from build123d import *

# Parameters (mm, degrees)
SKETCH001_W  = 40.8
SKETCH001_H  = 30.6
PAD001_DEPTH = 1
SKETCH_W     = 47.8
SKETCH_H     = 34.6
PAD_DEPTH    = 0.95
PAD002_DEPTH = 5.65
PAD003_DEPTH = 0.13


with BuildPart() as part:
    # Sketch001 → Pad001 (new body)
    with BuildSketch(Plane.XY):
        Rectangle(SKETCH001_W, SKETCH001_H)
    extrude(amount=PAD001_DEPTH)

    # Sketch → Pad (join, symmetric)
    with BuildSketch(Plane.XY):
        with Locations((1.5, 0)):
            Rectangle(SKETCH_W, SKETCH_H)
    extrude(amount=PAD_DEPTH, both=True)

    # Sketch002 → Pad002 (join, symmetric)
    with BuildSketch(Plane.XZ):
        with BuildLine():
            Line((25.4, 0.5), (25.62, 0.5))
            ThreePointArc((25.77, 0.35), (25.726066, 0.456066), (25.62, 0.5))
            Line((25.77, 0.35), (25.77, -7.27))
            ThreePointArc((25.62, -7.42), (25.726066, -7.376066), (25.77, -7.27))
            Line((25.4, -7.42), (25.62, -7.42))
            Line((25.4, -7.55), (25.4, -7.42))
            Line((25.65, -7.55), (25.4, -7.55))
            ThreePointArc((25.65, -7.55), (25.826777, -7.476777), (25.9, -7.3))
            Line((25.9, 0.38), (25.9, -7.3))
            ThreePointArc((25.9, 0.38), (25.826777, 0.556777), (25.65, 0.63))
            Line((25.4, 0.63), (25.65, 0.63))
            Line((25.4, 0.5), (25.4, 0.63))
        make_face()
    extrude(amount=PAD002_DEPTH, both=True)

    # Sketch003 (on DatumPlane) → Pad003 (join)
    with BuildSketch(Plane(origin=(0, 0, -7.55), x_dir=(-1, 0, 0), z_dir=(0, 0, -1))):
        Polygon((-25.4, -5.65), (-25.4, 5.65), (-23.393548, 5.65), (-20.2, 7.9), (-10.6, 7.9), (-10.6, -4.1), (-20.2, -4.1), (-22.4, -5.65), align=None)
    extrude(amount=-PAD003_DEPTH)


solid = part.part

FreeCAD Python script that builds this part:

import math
import FreeCAD as App
import Part
import Sketcher

V = App.Vector

doc = App.newDocument("Part")
params = doc.addObject("Spreadsheet::Sheet", "Params")
for row, (alias, value) in enumerate([
    ("sketch1_width", "40.8 mm"),
    ("sketch1_height", "30.6 mm"),
    ("pad1_length", "1 mm"),
    ("sketch2_width", "47.8 mm"),
    ("sketch2_height", "34.6 mm"),
    ("pad2_length", "1.9 mm"),
    ("sketch3_radius", "0.15 mm"),
    ("sketch3_radius2", "0.249999 mm"),
    ("sketch3_width", "0.22 mm"),
    ("sketch3_width2", "0.25 mm"),
    ("sketch3_height", "7.62 mm"),
    ("pad3_length", "11.3 mm"),
    ("sketch4_width", "3 mm"),
    ("sketch4_height", "12 mm"),
    ("sketch4_width2", "9.6 mm"),
    ("sketch4_height2", "11.3 mm"),
    ("pad4_length", "0.13 mm"),
], start=1):
    params.set(f"A{row}", alias)
    params.set(f"B{row}", "=" + value)
    params.setAlias(f"B{row}", alias)

body = doc.addObject("PartDesign::Body", "Body")

sketch1 = doc.addObject("Sketcher::SketchObject", "Sketch")
body.addObject(sketch1)
sketch1.AttachmentSupport = (doc.XY_Plane, [""])
sketch1.MapMode = "FlatFace"
sketch1.addGeometry(Part.LineSegment(V(-20, 15, 0), V(-20, -15, 0)), False)
sketch1.addGeometry(Part.LineSegment(V(-20, -15, 0), V(20, -15, 0)), False)
sketch1.addGeometry(Part.LineSegment(V(20, -15, 0), V(20, 15, 0)), False)
sketch1.addGeometry(Part.LineSegment(V(20, 15, 0), V(-20, 15, 0)), False)
sketch1.addConstraint(Sketcher.Constraint("Coincident", 0, 2, 1, 1))
sketch1.addConstraint(Sketcher.Constraint("Coincident", 1, 2, 2, 1))
sketch1.addConstraint(Sketcher.Constraint("Coincident", 2, 2, 3, 1))
sketch1.addConstraint(Sketcher.Constraint("Coincident", 3, 2, 0, 1))
sketch1.addConstraint(Sketcher.Constraint("Vertical", 0))
sketch1.addConstraint(Sketcher.Constraint("Horizontal", 1))
sketch1.addConstraint(Sketcher.Constraint("Vertical", 2))
sketch1.addConstraint(Sketcher.Constraint("Horizontal", 3))
sketch1.addConstraint(Sketcher.Constraint("Symmetric", 0, 2, 2, 2, -1, 1))
sketch1.addConstraint(Sketcher.Constraint("DistanceX", 1, 1, 1, 2, 40.8))
sketch1.addConstraint(Sketcher.Constraint("DistanceY", 0, 2, 0, 1, 30.6))
sketch1.setExpression("Constraints[9]", "Params.sketch1_width")
sketch1.setExpression("Constraints[10]", "Params.sketch1_height")
pad1 = doc.addObject("PartDesign::Pad", "Pad")
body.addObject(pad1)
pad1.Profile = sketch1
pad1.setExpression("Length", "Params.pad1_length")

sketch2 = doc.addObject("Sketcher::SketchObject", "Sketch001")
body.addObject(sketch2)
sketch2.AttachmentSupport = (doc.XY_Plane, [""])
sketch2.MapMode = "FlatFace"
sketch2.addGeometry(Part.LineSegment(V(-22, 17, 0), V(-22, -17, 0)), False)
sketch2.addGeometry(Part.LineSegment(V(-22, -17, 0), V(25, -17, 0)), False)
sketch2.addGeometry(Part.LineSegment(V(25, -17, 0), V(25, 17, 0)), False)
sketch2.addGeometry(Part.LineSegment(V(25, 17, 0), V(-22, 17, 0)), False)
sketch2.addConstraint(Sketcher.Constraint("Coincident", 0, 2, 1, 1))
sketch2.addConstraint(Sketcher.Constraint("Coincident", 1, 2, 2, 1))
sketch2.addConstraint(Sketcher.Constraint("Coincident", 2, 2, 3, 1))
sketch2.addConstraint(Sketcher.Constraint("Coincident", 3, 2, 0, 1))
sketch2.addConstraint(Sketcher.Constraint("Vertical", 0))
sketch2.addConstraint(Sketcher.Constraint("Horizontal", 1))
sketch2.addConstraint(Sketcher.Constraint("Vertical", 2))
sketch2.addConstraint(Sketcher.Constraint("Horizontal", 3))
sketch2.addConstraint(Sketcher.Constraint("DistanceX", 1, 1, 1, 2, 47.8))
sketch2.addConstraint(Sketcher.Constraint("DistanceY", 0, 2, 0, 1, 34.6))
sketch2.addConstraint(Sketcher.Constraint("DistanceX", 0, 2, -1, 1, 22.4))
sketch2.addConstraint(Sketcher.Constraint("DistanceY", 0, 2, -1, 1, 17.3))
sketch2.setExpression("Constraints[8]", "Params.sketch2_width")
sketch2.setExpression("Constraints[9]", "Params.sketch2_height")
pad2 = doc.addObject("PartDesign::Pad", "Pad001")
body.addObject(pad2)
pad2.Profile = sketch2
pad2.setExpression("Length", "Params.pad2_length")
pad2.Midplane = True

sketch3 = doc.addObject("Sketcher::SketchObject", "Sketch002")
body.addObject(sketch3)
sketch3.AttachmentSupport = (doc.XZ_Plane, [""])
sketch3.MapMode = "FlatFace"
sketch3.addGeometry(Part.LineSegment(V(25.4, 0.5, 0), V(25.62, 0.5, 0)), False)
sketch3.addGeometry(Part.ArcOfCircle(Part.Circle(V(25.62, 0.35, 0), V(0, 0, 1), 0.15), math.radians(0), math.radians(90)), False)
sketch3.addGeometry(Part.LineSegment(V(25.77, 0.35, 0), V(25.77, -7.27, 0)), False)
sketch3.addGeometry(Part.ArcOfCircle(Part.Circle(V(25.62, -7.27, 0), V(0, 0, 1), 0.15), math.radians(-90), math.radians(0)), False)
sketch3.addGeometry(Part.LineSegment(V(25.62, -7.42, 0), V(25.4, -7.42, 0)), False)
sketch3.addGeometry(Part.LineSegment(V(25.4, -7.42, 0), V(25.4, -7.55, 0)), False)
sketch3.addGeometry(Part.LineSegment(V(25.4, -7.55, 0), V(25.65, -7.55, 0)), False)
sketch3.addGeometry(Part.ArcOfCircle(Part.Circle(V(25.65, -7.3, 0), V(0, 0, 1), 0.25), math.radians(-90), math.radians(0)), False)
sketch3.addGeometry(Part.LineSegment(V(25.9, -7.3, 0), V(25.9, 0.38, 0)), False)
sketch3.addGeometry(Part.ArcOfCircle(Part.Circle(V(25.65, 0.38, 0), V(0, 0, 1), 0.25), math.radians(0), math.radians(90)), False)
sketch3.addGeometry(Part.LineSegment(V(25.65, 0.63, 0), V(25.4, 0.63, 0)), False)
sketch3.addGeometry(Part.LineSegment(V(25.4, 0.63, 0), V(25.4, 0.5, 0)), False)
sketch3.addConstraint(Sketcher.Constraint("Tangent", 0, 2, 1, 2))
sketch3.addConstraint(Sketcher.Constraint("Tangent", 1, 1, 2, 1))
sketch3.addConstraint(Sketcher.Constraint("Tangent", 2, 2, 3, 2))
sketch3.addConstraint(Sketcher.Constraint("Tangent", 3, 1, 4, 1))
sketch3.addConstraint(Sketcher.Constraint("Coincident", 4, 2, 5, 1))
sketch3.addConstraint(Sketcher.Constraint("Coincident", 5, 2, 6, 1))
sketch3.addConstraint(Sketcher.Constraint("Coincident", 6, 2, 7, 1))
sketch3.addConstraint(Sketcher.Constraint("Coincident", 7, 2, 8, 1))
sketch3.addConstraint(Sketcher.Constraint("Coincident", 8, 2, 9, 1))
sketch3.addConstraint(Sketcher.Constraint("Coincident", 9, 2, 10, 1))
sketch3.addConstraint(Sketcher.Constraint("Coincident", 10, 2, 11, 1))
sketch3.addConstraint(Sketcher.Constraint("Coincident", 11, 2, 0, 1))
sketch3.addConstraint(Sketcher.Constraint("Horizontal", 0))
sketch3.addConstraint(Sketcher.Constraint("Vertical", 2))
sketch3.addConstraint(Sketcher.Constraint("Horizontal", 4))
sketch3.addConstraint(Sketcher.Constraint("Vertical", 5))
sketch3.addConstraint(Sketcher.Constraint("Horizontal", 6))
sketch3.addConstraint(Sketcher.Constraint("Vertical", 8))
sketch3.addConstraint(Sketcher.Constraint("Horizontal", 10))
sketch3.addConstraint(Sketcher.Constraint("Vertical", 11))
sketch3.addConstraint(Sketcher.Constraint("Equal", 1, 3))
sketch3.addConstraint(Sketcher.Constraint("Equal", 7, 9))
sketch3.addConstraint(Sketcher.Constraint("Horizontal", 9, 3, 8, 2))
sketch3.addConstraint(Sketcher.Constraint("Vertical", 9, 3, 6, 2))
sketch3.addConstraint(Sketcher.Constraint("Vertical", 6, 2, 9, 2))
sketch3.addConstraint(Sketcher.Constraint("Vertical", 5, 2, 10, 2))
sketch3.addConstraint(Sketcher.Constraint("Equal", 5, 11))
sketch3.addConstraint(Sketcher.Constraint("Radius", 1, 0.15))
sketch3.addConstraint(Sketcher.Constraint("Radius", 7, 0.249999))
sketch3.addConstraint(Sketcher.Constraint("DistanceX", 0, 1, 0, 2, 0.22))
sketch3.addConstraint(Sketcher.Constraint("DistanceX", 6, 1, 6, 2, 0.25))
sketch3.addConstraint(Sketcher.Constraint("DistanceY", 2, 2, 2, 1, 7.62))
sketch3.addConstraint(Sketcher.Constraint("DistanceY", 5, 2, 5, 1, 0.13))
sketch3.addConstraint(Sketcher.Constraint("DistanceY", 8, 1, 8, 2, 7.68))
sketch3.addConstraint(Sketcher.Constraint("DistanceY", 7, 3, -1, 1, 7.300001))
sketch3.addConstraint(Sketcher.Constraint("DistanceX", -1, 1, 4, 2, 25.4))
sketch3.setExpression("Constraints[27]", "Params.sketch3_radius")
sketch3.setExpression("Constraints[28]", "Params.sketch3_radius2")
sketch3.setExpression("Constraints[29]", "Params.sketch3_width")
sketch3.setExpression("Constraints[30]", "Params.sketch3_width2")
sketch3.setExpression("Constraints[31]", "Params.sketch3_height")
pad3 = doc.addObject("PartDesign::Pad", "Pad002")
body.addObject(pad3)
pad3.Profile = sketch3
pad3.setExpression("Length", "Params.pad3_length")
pad3.Midplane = True

sketch4 = doc.addObject("Sketcher::SketchObject", "Sketch003")
body.addObject(sketch4)
sketch4.AttachmentSupport = (doc.XY_Plane, [""])
sketch4.MapMode = "FlatFace"
sketch4.AttachmentOffset = App.Placement(V(0, 0, -7.55), App.Rotation())
sketch4.addGeometry(Part.LineSegment(V(25.4, 5.7, 0), V(25.4, -5.7, 0)), False)
sketch4.addGeometry(Part.LineSegment(V(25.4, -5.7, 0), V(22.4, -5.7, 0)), False)
sketch4.addGeometry(Part.LineSegment(V(22.4, -5.7, 0), V(20.2, -4.1, 0)), False)
sketch4.addGeometry(Part.LineSegment(V(20.2, -4.1, 0), V(10.6, -4.1, 0)), False)
sketch4.addGeometry(Part.LineSegment(V(10.6, -4.1, 0), V(10.6, 7.9, 0)), False)
sketch4.addGeometry(Part.LineSegment(V(10.6, 7.9, 0), V(20.2, 7.9, 0)), False)
sketch4.addGeometry(Part.LineSegment(V(20.2, 7.9, 0), V(23.4, 5.7, 0)), False)
sketch4.addGeometry(Part.LineSegment(V(23.4, 5.7, 0), V(25.4, 5.7, 0)), False)
sketch4.addConstraint(Sketcher.Constraint("Coincident", 0, 2, 1, 1))
sketch4.addConstraint(Sketcher.Constraint("Coincident", 1, 2, 2, 1))
sketch4.addConstraint(Sketcher.Constraint("Coincident", 2, 2, 3, 1))
sketch4.addConstraint(Sketcher.Constraint("Coincident", 3, 2, 4, 1))
sketch4.addConstraint(Sketcher.Constraint("Coincident", 4, 2, 5, 1))
sketch4.addConstraint(Sketcher.Constraint("Coincident", 5, 2, 6, 1))
sketch4.addConstraint(Sketcher.Constraint("Coincident", 6, 2, 7, 1))
sketch4.addConstraint(Sketcher.Constraint("Coincident", 7, 2, 0, 1))
sketch4.addConstraint(Sketcher.Constraint("Vertical", 0))
sketch4.addConstraint(Sketcher.Constraint("Horizontal", 1))
sketch4.addConstraint(Sketcher.Constraint("Horizontal", 3))
sketch4.addConstraint(Sketcher.Constraint("Vertical", 4))
sketch4.addConstraint(Sketcher.Constraint("Horizontal", 5))
sketch4.addConstraint(Sketcher.Constraint("Horizontal", 7))
sketch4.addConstraint(Sketcher.Constraint("Parallel", 2, 6))
sketch4.addConstraint(Sketcher.Constraint("Vertical", 2, 2, 5, 2))
sketch4.addConstraint(Sketcher.Constraint("DistanceX", 1, 2, 1, 1, 3.0))
sketch4.addConstraint(Sketcher.Constraint("DistanceY", 4, 1, 4, 2, 12.0))
sketch4.addConstraint(Sketcher.Constraint("DistanceX", 3, 2, 3, 1, 9.6))
sketch4.addConstraint(Sketcher.Constraint("DistanceY", 0, 2, 0, 1, 11.3))
sketch4.addConstraint(Sketcher.Constraint("DistanceX", -1, 1, 0, 2, 25.4))
sketch4.addConstraint(Sketcher.Constraint("DistanceX", -1, 1, 2, 2, 20.2))
sketch4.addConstraint(Sketcher.Constraint("DistanceY", 2, 2, -1, 1, 4.1))
sketch4.addConstraint(Sketcher.Constraint("DistanceY", 0, 2, -1, 1, 5.65))
sketch4.setExpression("Constraints[16]", "Params.sketch4_width")
sketch4.setExpression("Constraints[17]", "Params.sketch4_height")
sketch4.setExpression("Constraints[18]", "Params.sketch4_width2")
sketch4.setExpression("Constraints[19]", "Params.sketch4_height2")
pad4 = doc.addObject("PartDesign::Pad", "Pad003")
body.addObject(pad4)
pad4.Profile = sketch4
pad4.setExpression("Length", "Params.pad4_length")

doc.recompute()
